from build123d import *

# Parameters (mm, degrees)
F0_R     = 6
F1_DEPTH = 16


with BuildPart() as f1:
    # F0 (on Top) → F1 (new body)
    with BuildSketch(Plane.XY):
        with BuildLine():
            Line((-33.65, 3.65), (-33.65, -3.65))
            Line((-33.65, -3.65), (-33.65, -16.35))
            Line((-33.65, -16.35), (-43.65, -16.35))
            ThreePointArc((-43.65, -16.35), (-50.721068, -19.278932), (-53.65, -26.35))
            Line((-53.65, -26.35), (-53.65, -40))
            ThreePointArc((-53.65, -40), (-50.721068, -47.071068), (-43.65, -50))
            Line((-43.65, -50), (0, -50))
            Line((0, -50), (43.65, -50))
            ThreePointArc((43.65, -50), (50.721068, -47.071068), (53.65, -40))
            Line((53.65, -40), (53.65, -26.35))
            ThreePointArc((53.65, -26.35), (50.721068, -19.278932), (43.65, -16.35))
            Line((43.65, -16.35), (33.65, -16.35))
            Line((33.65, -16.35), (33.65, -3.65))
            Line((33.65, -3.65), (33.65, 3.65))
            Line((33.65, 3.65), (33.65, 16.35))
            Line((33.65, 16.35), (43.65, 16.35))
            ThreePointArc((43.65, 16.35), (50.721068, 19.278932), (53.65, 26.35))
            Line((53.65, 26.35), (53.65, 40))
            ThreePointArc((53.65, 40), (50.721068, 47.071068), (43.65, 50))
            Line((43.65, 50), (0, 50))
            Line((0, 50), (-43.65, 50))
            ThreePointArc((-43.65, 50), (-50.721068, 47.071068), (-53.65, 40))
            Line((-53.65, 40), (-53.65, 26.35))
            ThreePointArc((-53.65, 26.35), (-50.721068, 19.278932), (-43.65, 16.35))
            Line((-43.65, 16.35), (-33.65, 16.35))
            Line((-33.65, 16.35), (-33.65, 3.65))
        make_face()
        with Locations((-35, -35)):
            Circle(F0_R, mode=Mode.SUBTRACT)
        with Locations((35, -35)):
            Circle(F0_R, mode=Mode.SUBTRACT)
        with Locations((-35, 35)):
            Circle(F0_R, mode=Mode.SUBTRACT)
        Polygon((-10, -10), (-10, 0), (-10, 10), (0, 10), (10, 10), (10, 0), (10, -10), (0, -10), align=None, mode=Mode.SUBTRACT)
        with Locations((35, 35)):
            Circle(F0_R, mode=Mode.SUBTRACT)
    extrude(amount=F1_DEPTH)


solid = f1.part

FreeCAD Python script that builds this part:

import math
import FreeCAD as App
import Part
import Sketcher
from FreeCAD import Vector
Q = App.Units.Quantity


def add_polygon(sketch, points):
    """Adds a closed chain of lines whose ends are joined by coincident constraints."""
    first, n = sketch.GeometryCount, len(points)
    for a, b in zip(points, points[1:] + points[:1]):
        sketch.addGeometry(Part.LineSegment(App.Vector(*a, 0), App.Vector(*b, 0)), False)
    for i in range(n):
        sketch.addConstraint(Sketcher.Constraint("Coincident", first + i, 2, first + (i + 1) % n, 1))

doc = App.newDocument("Part")
body = doc.addObject("PartDesign::Body", "Body")

# Sketch on XY plane
sketch1 = body.newObject("Sketcher::SketchObject", "Sketch")
sketch1.AttachmentSupport = (doc.getObject("XY_Plane"), [""])
sketch1.MapMode = "FlatFace"
sketch1.addGeometry(Part.LineSegment(Vector(-34, -16, 0), Vector(-44, -16, 0)), False)  # 0
sketch1.addGeometry(Part.ArcOfCircle(Part.Circle(Vector(-44, -26, 0), Vector(0, 0, 1), 10), math.radians(90), math.radians(180)), False)  # 1
sketch1.addGeometry(Part.LineSegment(Vector(-54, -26, 0), Vector(-54, -40, 0)), False)  # 2
sketch1.addGeometry(Part.ArcOfCircle(Part.Circle(Vector(-44, -40, 0), Vector(0, 0, 1), 10), math.radians(180), math.radians(270)), False)  # 3
sketch1.addGeometry(Part.LineSegment(Vector(-44, -50, 0), Vector(44, -50, 0)), False)  # 4
sketch1.addGeometry(Part.ArcOfCircle(Part.Circle(Vector(44, -40, 0), Vector(0, 0, 1), 10), math.radians(-90), math.radians(0)), False)  # 5
sketch1.addGeometry(Part.LineSegment(Vector(54, -40, 0), Vector(54, -26, 0)), False)  # 6
sketch1.addGeometry(Part.ArcOfCircle(Part.Circle(Vector(44, -26, 0), Vector(0, 0, 1), 10), math.radians(0), math.radians(90)), False)  # 7
sketch1.addGeometry(Part.LineSegment(Vector(44, -16, 0), Vector(34, -16, 0)), False)  # 8
sketch1.addGeometry(Part.LineSegment(Vector(34, -16, 0), Vector(34, 16, 0)), False)  # 9
sketch1.addGeometry(Part.LineSegment(Vector(34, 16, 0), Vector(44, 16, 0)), False)  # 10
sketch1.addGeometry(Part.ArcOfCircle(Part.Circle(Vector(44, 26, 0), Vector(0, 0, 1), 10), math.radians(-90), math.radians(0)), False)  # 11
sketch1.addGeometry(Part.LineSegment(Vector(54, 26, 0), Vector(54, 40, 0)), False)  # 12
sketch1.addGeometry(Part.ArcOfCircle(Part.Circle(Vector(44, 40, 0), Vector(0, 0, 1), 10), math.radians(0), math.radians(90)), False)  # 13
sketch1.addGeometry(Part.LineSegment(Vector(44, 50, 0), Vector(-44, 50, 0)), False)  # 14
sketch1.addGeometry(Part.ArcOfCircle(Part.Circle(Vector(-44, 40, 0), Vector(0, 0, 1), 10), math.radians(90), math.radians(180)), False)  # 15
sketch1.addGeometry(Part.LineSegment(Vector(-54, 40, 0), Vector(-54, 26, 0)), False)  # 16
sketch1.addGeometry(Part.ArcOfCircle(Part.Circle(Vector(-44, 26, 0), Vector(0, 0, 1), 10), math.radians(180), math.radians(270)), False)  # 17
sketch1.addGeometry(Part.LineSegment(Vector(-44, 16, 0), Vector(-34, 16, 0)), False)  # 18
sketch1.addGeometry(Part.LineSegment(Vector(-34, 16, 0), Vector(-34, -16, 0)), False)  # 19
sketch1.addGeometry(Part.Circle(Vector(-35, -35, 0), Vector(0, 0, 1), 6), False)  # 20
sketch1.addGeometry(Part.Circle(Vector(35, -35, 0), Vector(0, 0, 1), 6), False)  # 21
sketch1.addGeometry(Part.Circle(Vector(-35, 35, 0), Vector(0, 0, 1), 6), False)  # 22
add_polygon(sketch1, [(10, -10), (-10, -10), (-10, 10), (10, 10)])  # lines 23-26
sketch1.addGeometry(Part.Circle(Vector(35, 35, 0), Vector(0, 0, 1), 6), False)  # 27
sketch1.addConstraint(Sketcher.Constraint("Tangent", 0, 2, 1, 1))
sketch1.addConstraint(Sketcher.Constraint("Tangent", 1, 2, 2, 1))
sketch1.addConstraint(Sketcher.Constraint("Tangent", 2, 2, 3, 1))
sketch1.addConstraint(Sketcher.Constraint("Tangent", 3, 2, 4, 1))
sketch1.addConstraint(Sketcher.Constraint("Tangent", 4, 2, 5, 1))
sketch1.addConstraint(Sketcher.Constraint("Tangent", 5, 2, 6, 1))
sketch1.addConstraint(Sketcher.Constraint("Tangent", 6, 2, 7, 1))
sketch1.addConstraint(Sketcher.Constraint("Tangent", 7, 2, 8, 1))
sketch1.addConstraint(Sketcher.Constraint("Coincident", 8, 2, 9, 1))
sketch1.addConstraint(Sketcher.Constraint("Coincident", 9, 2, 10, 1))
sketch1.addConstraint(Sketcher.Constraint("Tangent", 10, 2, 11, 1))
sketch1.addConstraint(Sketcher.Constraint("Tangent", 11, 2, 12, 1))
sketch1.addConstraint(Sketcher.Constraint("Tangent", 12, 2, 13, 1))
sketch1.addConstraint(Sketcher.Constraint("Tangent", 13, 2, 14, 1))
sketch1.addConstraint(Sketcher.Constraint("Tangent", 14, 2, 15, 1))
sketch1.addConstraint(Sketcher.Constraint("Tangent", 15, 2, 16, 1))
sketch1.addConstraint(Sketcher.Constraint("Tangent", 16, 2, 17, 1))
sketch1.addConstraint(Sketcher.Constraint("Tangent", 17, 2, 18, 1))
sketch1.addConstraint(Sketcher.Constraint("Coincident", 18, 2, 19, 1))
sketch1.addConstraint(Sketcher.Constraint("Coincident", 19, 2, 0, 1))
sketch1.addConstraint(Sketcher.Constraint("Horizontal", 0))
sketch1.addConstraint(Sketcher.Constraint("Vertical", 2))
sketch1.addConstraint(Sketcher.Constraint("Horizontal", 4))
sketch1.addConstraint(Sketcher.Constraint("Vertical", 6))
sketch1.addConstraint(Sketcher.Constraint("Horizontal", 8))
sketch1.addConstraint(Sketcher.Constraint("Vertical", 9))
sketch1.addConstraint(Sketcher.Constraint("Horizontal", 10))
sketch1.addConstraint(Sketcher.Constraint("Vertical", 12))
sketch1.addConstraint(Sketcher.Constraint("Horizontal", 14))
sketch1.addConstraint(Sketcher.Constraint("Vertical", 16))
sketch1.addConstraint(Sketcher.Constraint("Horizontal", 18))
sketch1.addConstraint(Sketcher.Constraint("Vertical", 19))
sketch1.addConstraint(Sketcher.Constraint("Horizontal", 23))
sketch1.addConstraint(Sketcher.Constraint("Vertical", 24))
sketch1.addConstraint(Sketcher.Constraint("Horizontal", 25))
sketch1.addConstraint(Sketcher.Constraint("Vertical", 26))
sketch1.addConstraint(Sketcher.Constraint("Equal", 1, 3))
sketch1.addConstraint(Sketcher.Constraint("Equal", 3, 5))
sketch1.addConstraint(Sketcher.Constraint("Equal", 5, 7))
sketch1.addConstraint(Sketcher.Constraint("Equal", 7, 11))
sketch1.addConstraint(Sketcher.Constraint("Equal", 11, 13))
sketch1.addConstraint(Sketcher.Constraint("Equal", 13, 15))
sketch1.addConstraint(Sketcher.Constraint("Equal", 15, 17))
sketch1.addConstraint(Sketcher.Constraint("Equal", 20, 21))
sketch1.addConstraint(Sketcher.Constraint("Equal", 21, 22))
sketch1.addConstraint(Sketcher.Constraint("Equal", 22, 27))
sketch1.addConstraint(Sketcher.Constraint("Symmetric", 1, 3, 11, 3, -1, 1))
sketch1.addConstraint(Sketcher.Constraint("Symmetric", 5, 3, 15, 3, -1, 1))
sketch1.addConstraint(Sketcher.Constraint("Symmetric", 21, 3, 22, 3, -1, 1))
sketch1.addConstraint(Sketcher.Constraint("Symmetric", 20, 3, 27, 3, -1, 1))
sketch1.addConstraint(Sketcher.Constraint("Symmetric", 8, 2, 18, 2, -1, 1))
sketch1.addConstraint(Sketcher.Constraint("Symmetric", 23, 2, 25, 2, -1, 1))
sketch1.addConstraint(Sketcher.Constraint("Symmetric", 1, 3, 7, 3, -2))
sketch1.addConstraint(Sketcher.Constraint("Symmetric", 20, 3, 21, 3, -2))
sketch1.addConstraint(Sketcher.Constraint("Equal", 25, 24))
sketch1.addConstraint(Sketcher.Constraint("Diameter", 20, Q("12 mm")))
sketch1.addConstraint(Sketcher.Constraint("Radius", 1, Q("9.999999 mm")))
sketch1.addConstraint(Sketcher.Constraint("DistanceX", 0, 2, 0, 1, Q("10 mm")))
sketch1.addConstraint(Sketcher.Constraint("DistanceX", 23, 2, 23, 1, Q("20 mm")))
sketch1.addConstraint(Sketcher.Constraint("DistanceX", 4, 1, 4, 2, Q("87.3 mm")))
sketch1.addConstraint(Sketcher.Constraint("DistanceY", 9, 1, 9, 2, Q("32.7 mm")))
sketch1.addConstraint(Sketcher.Constraint("DistanceY", 3, 3, -1, 1, Q("40.000001 mm")))
sketch1.addConstraint(Sketcher.Constraint("DistanceX", 20, 3, -1, 1, Q("35 mm")))
sketch1.addConstraint(Sketcher.Constraint("DistanceY", 20, 3, -1, 1, Q("35 mm")))
pad1 = body.newObject("PartDesign::Pad", "Pad")
pad1.Profile = sketch1
pad1.Length = 16

doc.recompute()
